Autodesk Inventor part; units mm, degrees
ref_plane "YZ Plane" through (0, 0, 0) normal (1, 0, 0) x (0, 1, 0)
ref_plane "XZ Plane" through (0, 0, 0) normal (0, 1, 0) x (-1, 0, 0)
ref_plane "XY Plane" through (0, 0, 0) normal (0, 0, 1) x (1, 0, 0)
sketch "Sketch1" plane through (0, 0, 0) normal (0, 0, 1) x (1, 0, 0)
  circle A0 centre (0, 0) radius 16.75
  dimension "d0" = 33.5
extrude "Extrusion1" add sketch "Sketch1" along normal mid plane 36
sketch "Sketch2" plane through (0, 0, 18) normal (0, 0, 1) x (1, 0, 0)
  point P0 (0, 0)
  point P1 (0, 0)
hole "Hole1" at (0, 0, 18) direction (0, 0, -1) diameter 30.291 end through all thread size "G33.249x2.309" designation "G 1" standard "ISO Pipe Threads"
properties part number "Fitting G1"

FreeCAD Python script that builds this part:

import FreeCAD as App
import Part
import Sketcher

doc = App.newDocument("Part")
body = doc.addObject("PartDesign::Body", "Body")

# Sketch on XY plane
sketch1 = body.newObject("Sketcher::SketchObject", "Sketch")
sketch1.AttachmentSupport = (doc.getObject("XY_Plane"), [""])
sketch1.MapMode = "FlatFace"
sketch1.addGeometry(Part.Circle(App.Vector(0, 0, 0), App.Vector(0, 0, 1), 17), False)
sketch1.addConstraint(Sketcher.Constraint("Coincident", 0, 3, -1, 1))
sketch1.addConstraint(Sketcher.Constraint("Diameter", 0, 33.5))
pad1 = body.newObject("PartDesign::Pad", "Pad")
pad1.Profile = sketch1
pad1.Length = 36
pad1.Midplane = True

# Sketch on XY plane
sketch2 = body.newObject("Sketcher::SketchObject", "Sketch001")
sketch2.AttachmentSupport = (doc.getObject("XY_Plane"), [""])
sketch2.MapMode = "FlatFace"
sketch2.AttachmentOffset = App.Placement(App.Vector(0, 0, 18), App.Rotation())
sketch2.addGeometry(Part.Circle(App.Vector(0, 0, 0), App.Vector(0, 0, 1), 15), False)
sketch2.addConstraint(Sketcher.Constraint("Coincident", 0, 3, -1, 1))
sketch2.addConstraint(Sketcher.Constraint("Diameter", 0, 30.291))
doc.recompute()
hole = body.newObject("PartDesign::Hole", "Hole")
hole.Profile = sketch2
hole.ThreadType = "None"
hole.Diameter = 30.291
hole.DepthType = "ThroughAll"

doc.recompute()
